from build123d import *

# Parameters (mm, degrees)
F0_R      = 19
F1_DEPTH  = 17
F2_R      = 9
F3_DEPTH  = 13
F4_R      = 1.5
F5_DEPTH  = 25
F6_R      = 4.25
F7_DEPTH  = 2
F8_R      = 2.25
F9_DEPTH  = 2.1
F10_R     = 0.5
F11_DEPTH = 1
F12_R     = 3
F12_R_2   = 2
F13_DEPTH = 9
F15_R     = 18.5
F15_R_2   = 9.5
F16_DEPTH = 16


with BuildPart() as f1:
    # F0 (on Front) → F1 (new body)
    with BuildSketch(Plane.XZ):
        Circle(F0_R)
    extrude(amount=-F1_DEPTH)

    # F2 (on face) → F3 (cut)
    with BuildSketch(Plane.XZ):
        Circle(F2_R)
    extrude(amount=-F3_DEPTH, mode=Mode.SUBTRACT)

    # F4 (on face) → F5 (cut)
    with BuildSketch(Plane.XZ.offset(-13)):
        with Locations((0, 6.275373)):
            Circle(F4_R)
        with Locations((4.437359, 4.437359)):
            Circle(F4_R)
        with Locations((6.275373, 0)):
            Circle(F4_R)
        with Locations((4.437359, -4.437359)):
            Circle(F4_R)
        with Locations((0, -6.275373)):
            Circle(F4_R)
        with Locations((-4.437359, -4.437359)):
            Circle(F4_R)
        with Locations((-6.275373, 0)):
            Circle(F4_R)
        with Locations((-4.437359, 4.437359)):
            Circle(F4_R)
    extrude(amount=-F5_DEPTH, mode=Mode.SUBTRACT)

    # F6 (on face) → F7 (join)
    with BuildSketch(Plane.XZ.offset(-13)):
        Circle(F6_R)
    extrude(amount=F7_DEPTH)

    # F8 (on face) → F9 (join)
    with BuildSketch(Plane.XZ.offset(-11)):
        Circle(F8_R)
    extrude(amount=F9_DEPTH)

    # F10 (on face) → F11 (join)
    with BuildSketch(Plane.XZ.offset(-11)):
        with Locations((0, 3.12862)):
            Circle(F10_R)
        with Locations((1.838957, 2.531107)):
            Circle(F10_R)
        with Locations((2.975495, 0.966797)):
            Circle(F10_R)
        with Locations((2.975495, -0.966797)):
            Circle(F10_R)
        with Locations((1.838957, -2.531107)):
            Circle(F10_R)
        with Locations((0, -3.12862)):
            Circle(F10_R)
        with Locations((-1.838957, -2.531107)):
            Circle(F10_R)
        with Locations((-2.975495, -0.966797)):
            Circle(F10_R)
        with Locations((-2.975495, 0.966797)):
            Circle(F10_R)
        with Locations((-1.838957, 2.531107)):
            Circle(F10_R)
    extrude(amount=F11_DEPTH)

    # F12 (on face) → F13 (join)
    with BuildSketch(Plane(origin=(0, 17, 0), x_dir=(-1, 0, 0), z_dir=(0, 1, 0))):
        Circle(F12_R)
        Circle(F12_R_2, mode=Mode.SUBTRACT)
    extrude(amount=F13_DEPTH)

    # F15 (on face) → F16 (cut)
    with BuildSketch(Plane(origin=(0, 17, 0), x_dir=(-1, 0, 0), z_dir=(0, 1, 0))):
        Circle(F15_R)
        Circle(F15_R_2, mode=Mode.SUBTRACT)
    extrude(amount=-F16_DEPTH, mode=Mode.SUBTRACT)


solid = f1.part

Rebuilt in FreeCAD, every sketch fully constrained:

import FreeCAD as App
import Part
import Sketcher

V = App.Vector

doc = App.newDocument("Part")
body = doc.addObject("PartDesign::Body", "Body")

# Sketch on XZ plane
sketch1 = doc.addObject("Sketcher::SketchObject", "Sketch")
body.addObject(sketch1)
sketch1.AttachmentSupport = (doc.XZ_Plane, [""])
sketch1.MapMode = "FlatFace"
sketch1.addGeometry(Part.Circle(V(0, 0, 0), V(0, 0, 1), 19), False)
sketch1.addConstraint([
    Sketcher.Constraint("Coincident", 0, 3, -1, 1),
    Sketcher.Constraint("Diameter", 0, 38.0),
])
pad1 = doc.addObject("PartDesign::Pad", "Pad")
body.addObject(pad1)
pad1.Profile = sketch1
pad1.Length = 17
pad1.Reversed = True

# Sketch on XZ plane
sketch2 = doc.addObject("Sketcher::SketchObject", "Sketch001")
body.addObject(sketch2)
sketch2.AttachmentSupport = (doc.XZ_Plane, [""])
sketch2.MapMode = "FlatFace"
sketch2.addGeometry(Part.Circle(V(0, 0, 0), V(0, 0, 1), 9), False)
sketch2.addConstraint([
    Sketcher.Constraint("Coincident", 0, 3, -1, 1),
    Sketcher.Constraint("Diameter", 0, 18.0),
])
pocket1 = doc.addObject("PartDesign::Pocket", "Pocket")
body.addObject(pocket1)
pocket1.Profile = sketch2
pocket1.Length = 13

# Sketch on XZ plane
sketch3 = doc.addObject("Sketcher::SketchObject", "Sketch002")
body.addObject(sketch3)
sketch3.AttachmentSupport = (doc.XZ_Plane, [""])
sketch3.MapMode = "FlatFace"
sketch3.AttachmentOffset = App.Placement(V(0, 0, -13), App.Rotation())
sketch3.addGeometry([
    Part.Circle(V(0, 6.275373, 0), V(0, 0, 1), 1.5),  # 0
    Part.Circle(V(4.437359, 4.437359, 0), V(0, 0, 1), 1.5),  # 1
    Part.Circle(V(6.275373, 0, 0), V(0, 0, 1), 1.5),  # 2
    Part.Circle(V(4.437359, -4.437359, 0), V(0, 0, 1), 1.5),  # 3
    Part.Circle(V(0, -6.275373, 0), V(0, 0, 1), 1.5),  # 4
    Part.Circle(V(-4.437359, -4.437359, 0), V(0, 0, 1), 1.5),  # 5
    Part.Circle(V(-6.275373, 0, 0), V(0, 0, 1), 1.5),  # 6
    Part.Circle(V(-4.437359, 4.437359, 0), V(0, 0, 1), 1.5),  # 7
], False)
sketch3.addConstraint([
    Sketcher.Constraint("Equal", 0, 1),
    Sketcher.Constraint("Equal", 1, 2),
    Sketcher.Constraint("Equal", 2, 3),
    Sketcher.Constraint("Equal", 3, 4),
    Sketcher.Constraint("Equal", 4, 5),
    Sketcher.Constraint("Equal", 5, 6),
    Sketcher.Constraint("Equal", 6, 7),
    Sketcher.Constraint("Symmetric", 0, 3, 4, 3, -1, 1),
    Sketcher.Constraint("Symmetric", 1, 3, 5, 3, -1, 1),
    Sketcher.Constraint("Symmetric", 2, 3, 6, 3, -1, 1),
    Sketcher.Constraint("Symmetric", 3, 3, 7, 3, -1, 1),
    Sketcher.Constraint("Symmetric", 3, 3, 5, 3, -2),
    Sketcher.Constraint("PointOnObject", 0, 3, -2),
    Sketcher.Constraint("PointOnObject", 2, 3, -1),
    Sketcher.Constraint("Diameter", 0, 3.0),
    Sketcher.Constraint("DistanceX", -1, 1, 1, 3, 4.437359),
    Sketcher.Constraint("DistanceY", -1, 1, 1, 3, 4.437359),
    Sketcher.Constraint("DistanceY", 3, 3, 0, 3, 10.712732),
    Sketcher.Constraint("DistanceX", 5, 3, 2, 3, 10.712732),
])
pocket2 = doc.addObject("PartDesign::Pocket", "Pocket001")
body.addObject(pocket2)
pocket2.Profile = sketch3
pocket2.Length = 25

# Sketch on XZ plane
sketch4 = doc.addObject("Sketcher::SketchObject", "Sketch003")
body.addObject(sketch4)
sketch4.AttachmentSupport = (doc.XZ_Plane, [""])
sketch4.MapMode = "FlatFace"
sketch4.AttachmentOffset = App.Placement(V(0, 0, -13), App.Rotation())
sketch4.addGeometry(Part.Circle(V(0, 0, 0), V(0, 0, 1), 4.25), False)
sketch4.addConstraint([
    Sketcher.Constraint("Coincident", 0, 3, -1, 1),
    Sketcher.Constraint("Diameter", 0, 8.5),
])
pad2 = doc.addObject("PartDesign::Pad", "Pad001")
body.addObject(pad2)
pad2.Profile = sketch4
pad2.Length = 2

# Sketch on XZ plane
sketch5 = doc.addObject("Sketcher::SketchObject", "Sketch004")
body.addObject(sketch5)
sketch5.AttachmentSupport = (doc.XZ_Plane, [""])
sketch5.MapMode = "FlatFace"
sketch5.AttachmentOffset = App.Placement(V(0, 0, -11), App.Rotation())
sketch5.addGeometry(Part.Circle(V(0, 0, 0), V(0, 0, 1), 2.25), False)
sketch5.addConstraint([
    Sketcher.Constraint("Coincident", 0, 3, -1, 1),
    Sketcher.Constraint("Diameter", 0, 4.5),
])
pad3 = doc.addObject("PartDesign::Pad", "Pad002")
body.addObject(pad3)
pad3.Profile = sketch5
pad3.Length = 2.1

# Sketch on XZ plane
sketch6 = doc.addObject("Sketcher::SketchObject", "Sketch005")
body.addObject(sketch6)
sketch6.AttachmentSupport = (doc.XZ_Plane, [""])
sketch6.MapMode = "FlatFace"
sketch6.AttachmentOffset = App.Placement(V(0, 0, -11), App.Rotation())
sketch6.addGeometry([
    Part.Circle(V(0, 3.12862, 0), V(0, 0, 1), 0.5),  # 0
    Part.Circle(V(1.838957, 2.531107, 0), V(0, 0, 1), 0.5),  # 1
    Part.Circle(V(2.975495, 0.966797, 0), V(0, 0, 1), 0.5),  # 2
    Part.Circle(V(2.975495, -0.966797, 0), V(0, 0, 1), 0.5),  # 3
    Part.Circle(V(1.838957, -2.531107, 0), V(0, 0, 1), 0.5),  # 4
    Part.Circle(V(0, -3.12862, 0), V(0, 0, 1), 0.5),  # 5
    Part.Circle(V(-1.838957, -2.531107, 0), V(0, 0, 1), 0.5),  # 6
    Part.Circle(V(-2.975495, -0.966797, 0), V(0, 0, 1), 0.5),  # 7
    Part.Circle(V(-2.975495, 0.966797, 0), V(0, 0, 1), 0.5),  # 8
    Part.Circle(V(-1.838957, 2.531107, 0), V(0, 0, 1), 0.5),  # 9
], False)
sketch6.addConstraint([
    Sketcher.Constraint("Equal", 0, 1),
    Sketcher.Constraint("Equal", 1, 2),
    Sketcher.Constraint("Equal", 2, 3),
    Sketcher.Constraint("Equal", 3, 4),
    Sketcher.Constraint("Equal", 4, 5),
    Sketcher.Constraint("Equal", 5, 6),
    Sketcher.Constraint("Equal", 6, 7),
    Sketcher.Constraint("Equal", 7, 8),
    Sketcher.Constraint("Equal", 8, 9),
    Sketcher.Constraint("Symmetric", 0, 3, 5, 3, -1, 1),
    Sketcher.Constraint("Symmetric", 1, 3, 6, 3, -1, 1),
    Sketcher.Constraint("Symmetric", 2, 3, 7, 3, -1, 1),
    Sketcher.Constraint("Symmetric", 3, 3, 8, 3, -1, 1),
    Sketcher.Constraint("Symmetric", 4, 3, 9, 3, -1, 1),
    Sketcher.Constraint("Symmetric", 4, 3, 6, 3, -2),
    Sketcher.Constraint("Symmetric", 3, 3, 7, 3, -2),
    Sketcher.Constraint("PointOnObject", 0, 3, -2),
    Sketcher.Constraint("Diameter", 0, 1.0),
    Sketcher.Constraint("DistanceY", -1, 1, 0, 3, 3.12862),
    Sketcher.Constraint("DistanceY", 2, 3, 1, 3, 1.56431),
    Sketcher.Constraint("DistanceX", -1, 1, 1, 3, 1.838957),
    Sketcher.Constraint("DistanceY", -1, 1, 1, 3, 2.531107),
    Sketcher.Constraint("DistanceX", -1, 1, 2, 3, 2.975495),
])
pad4 = doc.addObject("PartDesign::Pad", "Pad003")
body.addObject(pad4)
pad4.Profile = sketch6
pad4.Length = 1

# Sketch on XZ plane
sketch7 = doc.addObject("Sketcher::SketchObject", "Sketch006")
body.addObject(sketch7)
sketch7.AttachmentSupport = (doc.XZ_Plane, [""])
sketch7.MapMode = "FlatFace"
sketch7.AttachmentOffset = App.Placement(V(0, 0, -17), App.Rotation())
sketch7.addGeometry([
    Part.Circle(V(0, 0, 0), V(0, 0, 1), 3),
    Part.Circle(V(0, 0, 0), V(0, 0, 1), 2),
], False)
sketch7.addConstraint([
    Sketcher.Constraint("Coincident", 0, 3, -1, 1),
    Sketcher.Constraint("Coincident", 1, 3, -1, 1),
    Sketcher.Constraint("Diameter", 0, 6.0),
    Sketcher.Constraint("Diameter", 1, 4.0),
])
pad5 = doc.addObject("PartDesign::Pad", "Pad004")
body.addObject(pad5)
pad5.Profile = sketch7
pad5.Length = 9
pad5.Reversed = True

# Sketch on XZ plane
sketch8 = doc.addObject("Sketcher::SketchObject", "Sketch007")
body.addObject(sketch8)
sketch8.AttachmentSupport = (doc.XZ_Plane, [""])
sketch8.MapMode = "FlatFace"
sketch8.AttachmentOffset = App.Placement(V(0, 0, -17), App.Rotation())
sketch8.addGeometry([
    Part.Circle(V(0, 0, 0), V(0, 0, 1), 18.5),
    Part.Circle(V(0, 0, 0), V(0, 0, 1), 9.5),
], False)
sketch8.addConstraint([
    Sketcher.Constraint("Coincident", 0, 3, -1, 1),
    Sketcher.Constraint("Coincident", 1, 3, -1, 1),
    Sketcher.Constraint("Diameter", 0, 37.0),
    Sketcher.Constraint("Diameter", 1, 19.0),
])
pocket3 = doc.addObject("PartDesign::Pocket", "Pocket002")
body.addObject(pocket3)
pocket3.Profile = sketch8
pocket3.Length = 16
pocket3.Reversed = True

doc.recompute()
